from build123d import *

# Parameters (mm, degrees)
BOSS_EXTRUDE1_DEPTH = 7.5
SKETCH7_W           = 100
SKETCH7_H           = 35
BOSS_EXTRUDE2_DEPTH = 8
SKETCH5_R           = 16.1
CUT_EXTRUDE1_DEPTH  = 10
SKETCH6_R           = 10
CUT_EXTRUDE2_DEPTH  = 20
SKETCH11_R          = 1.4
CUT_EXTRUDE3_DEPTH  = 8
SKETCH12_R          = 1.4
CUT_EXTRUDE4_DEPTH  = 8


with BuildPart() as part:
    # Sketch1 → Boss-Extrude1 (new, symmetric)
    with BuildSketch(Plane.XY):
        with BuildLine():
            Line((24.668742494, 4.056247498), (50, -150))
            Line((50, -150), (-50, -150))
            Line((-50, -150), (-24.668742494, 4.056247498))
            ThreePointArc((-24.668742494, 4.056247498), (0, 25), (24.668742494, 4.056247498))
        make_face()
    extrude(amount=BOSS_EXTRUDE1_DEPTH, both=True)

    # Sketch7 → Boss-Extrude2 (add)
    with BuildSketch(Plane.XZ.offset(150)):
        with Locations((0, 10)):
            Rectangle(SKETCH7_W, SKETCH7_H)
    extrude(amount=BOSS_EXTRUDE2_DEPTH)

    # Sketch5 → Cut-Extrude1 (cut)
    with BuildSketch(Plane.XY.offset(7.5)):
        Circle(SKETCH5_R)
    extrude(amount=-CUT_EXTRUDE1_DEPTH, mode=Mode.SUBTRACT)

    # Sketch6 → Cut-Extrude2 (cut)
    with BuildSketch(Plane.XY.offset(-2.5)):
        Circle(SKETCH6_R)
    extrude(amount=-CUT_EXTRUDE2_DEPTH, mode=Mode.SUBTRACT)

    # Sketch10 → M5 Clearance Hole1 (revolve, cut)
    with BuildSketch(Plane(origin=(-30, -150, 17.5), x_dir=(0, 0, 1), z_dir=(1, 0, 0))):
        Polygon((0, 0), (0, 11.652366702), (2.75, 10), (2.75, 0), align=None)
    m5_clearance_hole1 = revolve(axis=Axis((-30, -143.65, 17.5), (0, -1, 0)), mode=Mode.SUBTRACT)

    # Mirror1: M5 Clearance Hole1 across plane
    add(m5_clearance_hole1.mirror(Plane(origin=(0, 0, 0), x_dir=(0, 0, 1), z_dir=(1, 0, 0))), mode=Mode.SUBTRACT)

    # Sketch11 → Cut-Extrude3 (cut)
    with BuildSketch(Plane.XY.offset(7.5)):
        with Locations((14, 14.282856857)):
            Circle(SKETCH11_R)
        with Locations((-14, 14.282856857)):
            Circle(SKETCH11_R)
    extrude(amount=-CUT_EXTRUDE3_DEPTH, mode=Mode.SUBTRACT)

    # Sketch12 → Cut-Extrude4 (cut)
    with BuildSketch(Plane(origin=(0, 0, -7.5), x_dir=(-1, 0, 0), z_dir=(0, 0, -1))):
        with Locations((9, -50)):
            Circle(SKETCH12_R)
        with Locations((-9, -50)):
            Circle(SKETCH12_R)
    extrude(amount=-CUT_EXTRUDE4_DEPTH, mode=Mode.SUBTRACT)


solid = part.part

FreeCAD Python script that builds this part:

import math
import FreeCAD as App
import Part
import Sketcher
Q = App.Units.Quantity

doc = App.newDocument("Part")
body = doc.addObject("PartDesign::Body", "Body")

sketch1 = body.newObject("Sketcher::SketchObject", "Sketch")
sketch1.AttachmentSupport = (doc.getObject("XY_Plane"), [""])
sketch1.MapMode = "FlatFace"
sketch1.addGeometry([
    Part.LineSegment(App.Vector(50, -150, 0), App.Vector(25, 4, 0)),
    Part.ArcOfCircle(Part.Circle(App.Vector(0, 0, 0), App.Vector(0, 0, 1), 25), math.radians(9), math.radians(171)),
    Part.LineSegment(App.Vector(-25, 4, 0), App.Vector(-50, -150, 0)),
    Part.LineSegment(App.Vector(-50, -150, 0), App.Vector(50, -150, 0)),
], False)
sketch1.addConstraint([
    Sketcher.Constraint("Tangent", 0, 2, 1, 1),
    Sketcher.Constraint("Tangent", 1, 2, 2, 1),
    Sketcher.Constraint("Coincident", 2, 2, 3, 1),
    Sketcher.Constraint("Coincident", 3, 2, 0, 1),
    Sketcher.Constraint("Horizontal", 3),
    Sketcher.Constraint("Coincident", 1, 3, -1, 1),
    Sketcher.Constraint("Horizontal", 0, 2, 1, 2),
    Sketcher.Constraint("Radius", 1, Q("25 mm")),
    Sketcher.Constraint("DistanceX", 3, 1, 3, 2, Q("100 mm")),
    Sketcher.Constraint("DistanceY", 2, 2, -1, 1, Q("150 mm")),
])
pad1 = body.newObject("PartDesign::Pad", "Pad")
pad1.Profile = sketch1
pad1.Length = 15
pad1.Midplane = True

sketch2 = body.newObject("Sketcher::SketchObject", "Sketch001")
sketch2.AttachmentSupport = (doc.getObject("XZ_Plane"), [""])
sketch2.MapMode = "FlatFace"
sketch2.AttachmentOffset = App.Placement(App.Vector(0, 0, 150), App.Rotation())
sketch2.addGeometry([
    Part.LineSegment(App.Vector(-50, 28, 0), App.Vector(-50, -8, 0)),
    Part.LineSegment(App.Vector(-50, -8, 0), App.Vector(50, -8, 0)),
    Part.LineSegment(App.Vector(50, -8, 0), App.Vector(50, 28, 0)),
    Part.LineSegment(App.Vector(50, 28, 0), App.Vector(-50, 28, 0)),
], False)
sketch2.addConstraint([
    Sketcher.Constraint("Coincident", 0, 2, 1, 1),
    Sketcher.Constraint("Coincident", 1, 2, 2, 1),
    Sketcher.Constraint("Coincident", 2, 2, 3, 1),
    Sketcher.Constraint("Coincident", 3, 2, 0, 1),
    Sketcher.Constraint("Vertical", 0),
    Sketcher.Constraint("Horizontal", 1),
    Sketcher.Constraint("Vertical", 2),
    Sketcher.Constraint("Horizontal", 3),
    Sketcher.Constraint("DistanceX", 1, 1, 1, 2, Q("100 mm")),
    Sketcher.Constraint("DistanceY", 0, 2, 0, 1, Q("35 mm")),
    Sketcher.Constraint("DistanceX", 0, 2, -1, 1, Q("50 mm")),
    Sketcher.Constraint("DistanceY", 0, 2, -1, 1, Q("7.5 mm")),
])
pad2 = body.newObject("PartDesign::Pad", "Pad001")
pad2.Profile = sketch2
pad2.Length = 8

sketch3 = body.newObject("Sketcher::SketchObject", "Sketch002")
sketch3.AttachmentSupport = (doc.getObject("XY_Plane"), [""])
sketch3.MapMode = "FlatFace"
sketch3.AttachmentOffset = App.Placement(App.Vector(0, 0, 7.5), App.Rotation())
sketch3.addGeometry(Part.Circle(App.Vector(0, 0, 0), App.Vector(0, 0, 1), 16), False)
sketch3.addConstraint([
    Sketcher.Constraint("Coincident", 0, 3, -1, 1),
    Sketcher.Constraint("Diameter", 0, Q("32.2 mm")),
])
pocket1 = body.newObject("PartDesign::Pocket", "Pocket")
pocket1.Profile = sketch3
pocket1.Length = 10

sketch4 = body.newObject("Sketcher::SketchObject", "Sketch003")
sketch4.AttachmentSupport = (doc.getObject("XY_Plane"), [""])
sketch4.MapMode = "FlatFace"
sketch4.AttachmentOffset = App.Placement(App.Vector(0, 0, -2.5), App.Rotation())
sketch4.addGeometry(Part.Circle(App.Vector(0, 0, 0), App.Vector(0, 0, 1), 10), False)
sketch4.addConstraint([
    Sketcher.Constraint("Coincident", 0, 3, -1, 1),
    Sketcher.Constraint("Diameter", 0, Q("20 mm")),
])
pocket2 = body.newObject("PartDesign::Pocket", "Pocket001")
pocket2.Profile = sketch4
pocket2.Length = 20

sketch5 = body.newObject("Sketcher::SketchObject", "Sketch004")
sketch5.AttachmentSupport = (doc.getObject("YZ_Plane"), [""])
sketch5.MapMode = "FlatFace"
sketch5.AttachmentOffset = App.Placement(App.Vector(0, 0, -30), App.Rotation())
sketch5.addGeometry([
    Part.LineSegment(App.Vector(-161.7, 17.5, 0), App.Vector(-150, 17.5, 0)),
    Part.LineSegment(App.Vector(-150, 17.5, 0), App.Vector(-150, 20.2, 0)),
    Part.LineSegment(App.Vector(-150, 20.2, 0), App.Vector(-160, 20.2, 0)),
    Part.LineSegment(App.Vector(-160, 20.2, 0), App.Vector(-161.7, 17.5, 0)),
], False)
sketch5.addGeometry(Part.LineSegment(App.Vector(-150, 17.5, 0), App.Vector(-161.7, 17.5, 0)), True)
sketch5.addConstraint([
    Sketcher.Constraint("Coincident", 0, 2, 1, 1),
    Sketcher.Constraint("Coincident", 1, 2, 2, 1),
    Sketcher.Constraint("Coincident", 2, 2, 3, 1),
    Sketcher.Constraint("Coincident", 3, 2, 0, 1),
    Sketcher.Constraint("Horizontal", 0),
    Sketcher.Constraint("Vertical", 1),
    Sketcher.Constraint("Horizontal", 2),
    Sketcher.Constraint("Horizontal", 4),
    Sketcher.Constraint("Coincident", 4, 1, 0, 2),
    Sketcher.Constraint("Equal", 0, 4),
    Sketcher.Constraint("DistanceX", 2, 2, 2, 1, Q("10 mm")),
    Sketcher.Constraint("Angle", 3, Q("-121 deg")),
    Sketcher.Constraint("DistanceX", 0, 2, -1, 1, Q("150 mm")),
    Sketcher.Constraint("DistanceY", 1, 1, 1, 2, Q("2.75 mm")),
    Sketcher.Constraint("DistanceY", -1, 1, 0, 2, Q("17.5 mm")),
])
groove = body.newObject("PartDesign::Groove", "Groove")
groove.Profile = sketch5
groove.ReferenceAxis = (sketch5, ["Axis0"])
groove.Angle = 360
doc.recompute()

mirrored = body.newObject("PartDesign::Mirrored", "Mirrored")
mirrored.Originals = [groove]
mirrored.MirrorPlane = (doc.getObject("YZ_Plane"), [""])
body.Tip = mirrored

sketch6 = body.newObject("Sketcher::SketchObject", "Sketch005")
sketch6.AttachmentSupport = (doc.getObject("XY_Plane"), [""])
sketch6.MapMode = "FlatFace"
sketch6.AttachmentOffset = App.Placement(App.Vector(0, 0, 7.5), App.Rotation())
sketch6.addGeometry([
    Part.Circle(App.Vector(14, 14.3, 0), App.Vector(0, 0, 1), 1.4),
    Part.Circle(App.Vector(-14, 14.3, 0), App.Vector(0, 0, 1), 1.4),
], False)
sketch6.addConstraint([
    Sketcher.Constraint("Equal", 0, 1),
    Sketcher.Constraint("Symmetric", 0, 3, 1, 3, -2),
    Sketcher.Constraint("Diameter", 0, Q("2.8 mm")),
    Sketcher.Constraint("DistanceX", -1, 1, 0, 3, Q("14 mm")),
    Sketcher.Constraint("DistanceY", -1, 1, 0, 3, Q("14.282857 mm")),
])
pocket3 = body.newObject("PartDesign::Pocket", "Pocket002")
pocket3.Profile = sketch6
pocket3.Length = 8

sketch7 = body.newObject("Sketcher::SketchObject", "Sketch006")
sketch7.AttachmentSupport = (doc.getObject("XY_Plane"), [""])
sketch7.MapMode = "FlatFace"
sketch7.AttachmentOffset = App.Placement(App.Vector(0, 0, -7.5), App.Rotation())
sketch7.addGeometry([
    Part.Circle(App.Vector(-9, -50, 0), App.Vector(0, 0, 1), 1.4),
    Part.Circle(App.Vector(9, -50, 0), App.Vector(0, 0, 1), 1.4),
], False)
sketch7.addConstraint([
    Sketcher.Constraint("Equal", 0, 1),
    Sketcher.Constraint("Symmetric", 0, 3, 1, 3, -2),
    Sketcher.Constraint("Diameter", 0, Q("2.8 mm")),
    Sketcher.Constraint("DistanceX", 0, 3, -1, 1, Q("9 mm")),
    Sketcher.Constraint("DistanceY", 0, 3, -1, 1, Q("50 mm")),
])
pocket4 = body.newObject("PartDesign::Pocket", "Pocket003")
pocket4.Profile = sketch7
pocket4.Length = 8
pocket4.Reversed = True

doc.recompute()
